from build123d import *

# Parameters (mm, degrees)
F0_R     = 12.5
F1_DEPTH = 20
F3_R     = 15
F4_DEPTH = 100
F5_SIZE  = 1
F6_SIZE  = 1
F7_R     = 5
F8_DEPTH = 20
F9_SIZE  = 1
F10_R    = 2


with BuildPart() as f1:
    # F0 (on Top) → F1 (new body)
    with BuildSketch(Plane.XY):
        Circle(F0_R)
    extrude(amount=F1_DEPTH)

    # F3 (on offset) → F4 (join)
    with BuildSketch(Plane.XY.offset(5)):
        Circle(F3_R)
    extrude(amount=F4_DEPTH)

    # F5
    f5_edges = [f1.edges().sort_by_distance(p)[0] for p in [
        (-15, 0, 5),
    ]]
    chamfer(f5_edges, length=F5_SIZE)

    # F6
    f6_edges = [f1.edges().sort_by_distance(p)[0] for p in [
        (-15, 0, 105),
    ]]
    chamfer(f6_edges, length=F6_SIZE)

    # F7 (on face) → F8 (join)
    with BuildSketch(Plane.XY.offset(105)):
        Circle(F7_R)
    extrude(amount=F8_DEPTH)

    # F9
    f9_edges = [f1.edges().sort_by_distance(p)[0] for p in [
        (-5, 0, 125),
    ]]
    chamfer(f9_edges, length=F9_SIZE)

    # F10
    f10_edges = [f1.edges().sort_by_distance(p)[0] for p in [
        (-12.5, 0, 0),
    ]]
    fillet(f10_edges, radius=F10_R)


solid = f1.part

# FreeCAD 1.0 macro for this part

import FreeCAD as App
import Part
import Sketcher

V = App.Vector


def edges_at(feature, points):
    """Names of the edges that pass closest to the given points."""
    edges = feature.Shape.Edges
    near = lambda p: min(range(len(edges)), key=lambda i: edges[i].distToShape(Part.Vertex(*p))[0])
    return sorted({f"Edge{near(p) + 1}" for p in points})

doc = App.newDocument("Part")
body = doc.addObject("PartDesign::Body", "Body")

# Sketch on XY plane
sketch1 = doc.addObject("Sketcher::SketchObject", "Sketch")
body.addObject(sketch1)
sketch1.AttachmentSupport = (doc.XY_Plane, [""])
sketch1.MapMode = "FlatFace"
sketch1.addGeometry(Part.Circle(V(0, 0, 0), V(0, 0, 1), 12), False)
sketch1.addConstraint(Sketcher.Constraint("Coincident", 0, 3, -1, 1))
sketch1.addConstraint(Sketcher.Constraint("Diameter", 0, 25.0))
pad1 = doc.addObject("PartDesign::Pad", "Pad")
body.addObject(pad1)
pad1.Profile = sketch1
pad1.Length = 20

# Sketch on XY plane
sketch2 = doc.addObject("Sketcher::SketchObject", "Sketch001")
body.addObject(sketch2)
sketch2.AttachmentSupport = (doc.XY_Plane, [""])
sketch2.MapMode = "FlatFace"
sketch2.AttachmentOffset = App.Placement(V(0, 0, 5), App.Rotation())
sketch2.addGeometry(Part.Circle(V(0, 0, 0), V(0, 0, 1), 15), False)
sketch2.addConstraint(Sketcher.Constraint("Coincident", 0, 3, -1, 1))
sketch2.addConstraint(Sketcher.Constraint("Diameter", 0, 30.0))
pad2 = doc.addObject("PartDesign::Pad", "Pad001")
body.addObject(pad2)
pad2.Profile = sketch2
pad2.Length = 100
doc.recompute()

chamfer = doc.addObject("PartDesign::Chamfer", "Chamfer")
body.addObject(chamfer)
chamfer.Base = (pad2, edges_at(pad2, [(-15, 0, 5)]))
chamfer.Size = 1
doc.recompute()

chamfer2 = doc.addObject("PartDesign::Chamfer", "Chamfer001")
body.addObject(chamfer2)
chamfer2.Base = (chamfer, edges_at(chamfer, [(-15, 0, 105)]))
chamfer2.Size = 1

# Sketch on XY plane
sketch3 = doc.addObject("Sketcher::SketchObject", "Sketch002")
body.addObject(sketch3)
sketch3.AttachmentSupport = (doc.XY_Plane, [""])
sketch3.MapMode = "FlatFace"
sketch3.AttachmentOffset = App.Placement(V(0, 0, 105), App.Rotation())
sketch3.addGeometry(Part.Circle(V(0, 0, 0), V(0, 0, 1), 5), False)
sketch3.addConstraint(Sketcher.Constraint("Coincident", 0, 3, -1, 1))
sketch3.addConstraint(Sketcher.Constraint("Diameter", 0, 10.0))
pad3 = doc.addObject("PartDesign::Pad", "Pad002")
body.addObject(pad3)
pad3.Profile = sketch3
pad3.Length = 20
doc.recompute()

chamfer3 = doc.addObject("PartDesign::Chamfer", "Chamfer002")
body.addObject(chamfer3)
chamfer3.Base = (pad3, edges_at(pad3, [(-5, 0, 125)]))
chamfer3.Size = 1
doc.recompute()

fillet = doc.addObject("PartDesign::Fillet", "Fillet")
body.addObject(fillet)
fillet.Base = (chamfer3, edges_at(chamfer3, [(-12.5, 0, 0)]))
fillet.Radius = 2

doc.recompute()
